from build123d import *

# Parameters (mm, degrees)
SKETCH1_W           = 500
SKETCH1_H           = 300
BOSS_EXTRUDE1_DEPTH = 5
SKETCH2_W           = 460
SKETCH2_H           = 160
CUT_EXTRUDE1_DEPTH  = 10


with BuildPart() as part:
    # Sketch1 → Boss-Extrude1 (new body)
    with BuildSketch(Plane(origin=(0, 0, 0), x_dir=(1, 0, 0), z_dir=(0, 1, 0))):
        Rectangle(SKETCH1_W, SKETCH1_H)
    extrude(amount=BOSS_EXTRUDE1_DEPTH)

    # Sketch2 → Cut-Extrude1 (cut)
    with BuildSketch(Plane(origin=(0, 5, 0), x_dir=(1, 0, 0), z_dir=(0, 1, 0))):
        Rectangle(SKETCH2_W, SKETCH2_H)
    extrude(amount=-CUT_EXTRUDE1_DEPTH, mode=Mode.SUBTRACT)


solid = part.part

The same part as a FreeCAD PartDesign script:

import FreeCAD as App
import Part
import Sketcher

V = App.Vector


def add_polygon(sketch, points):
    """Adds a closed chain of lines whose ends are joined by coincident constraints."""
    first, n = sketch.GeometryCount, len(points)
    for a, b in zip(points, points[1:] + points[:1]):
        sketch.addGeometry(Part.LineSegment(App.Vector(*a, 0), App.Vector(*b, 0)), False)
    for i in range(n):
        sketch.addConstraint(Sketcher.Constraint("Coincident", first + i, 2, first + (i + 1) % n, 1))

doc = App.newDocument("Part")
body = doc.addObject("PartDesign::Body", "Body")

# Sketch on XZ plane
sketch1 = body.newObject("Sketcher::SketchObject", "Sketch")
sketch1.AttachmentSupport = (doc.getObject("XZ_Plane"), [""])
sketch1.MapMode = "FlatFace"
add_polygon(sketch1, [(-250, -150), (-250, 150), (250, 150), (250, -150)])  # lines 0-3
sketch1.addConstraint(Sketcher.Constraint("Vertical", 0))
sketch1.addConstraint(Sketcher.Constraint("Horizontal", 1))
sketch1.addConstraint(Sketcher.Constraint("Vertical", 2))
sketch1.addConstraint(Sketcher.Constraint("Horizontal", 3))
sketch1.addConstraint(Sketcher.Constraint("Symmetric", 0, 2, 2, 2, -1, 1))
sketch1.addConstraint(Sketcher.Constraint("DistanceX", 1, 1, 1, 2, 500.0))
sketch1.addConstraint(Sketcher.Constraint("DistanceY", 0, 1, 0, 2, 300.0))
pad1 = body.newObject("PartDesign::Pad", "Pad")
pad1.Profile = sketch1
pad1.Length = 5
pad1.Reversed = True

# Sketch on XZ plane
sketch2 = body.newObject("Sketcher::SketchObject", "Sketch001")
sketch2.AttachmentSupport = (doc.getObject("XZ_Plane"), [""])
sketch2.MapMode = "FlatFace"
sketch2.AttachmentOffset = App.Placement(V(0, 0, -5), App.Rotation())
add_polygon(sketch2, [(-230, -80), (-230, 80), (230, 80), (230, -80)])  # lines 0-3
sketch2.addConstraint(Sketcher.Constraint("Vertical", 0))
sketch2.addConstraint(Sketcher.Constraint("Horizontal", 1))
sketch2.addConstraint(Sketcher.Constraint("Vertical", 2))
sketch2.addConstraint(Sketcher.Constraint("Horizontal", 3))
sketch2.addConstraint(Sketcher.Constraint("Symmetric", 0, 2, 2, 2, -1, 1))
sketch2.addConstraint(Sketcher.Constraint("DistanceX", 1, 1, 1, 2, 460.0))
sketch2.addConstraint(Sketcher.Constraint("DistanceY", 0, 1, 0, 2, 160.0))
pocket1 = body.newObject("PartDesign::Pocket", "Pocket")
pocket1.Profile = sketch2
pocket1.Length = 10
pocket1.Reversed = True

doc.recompute()
